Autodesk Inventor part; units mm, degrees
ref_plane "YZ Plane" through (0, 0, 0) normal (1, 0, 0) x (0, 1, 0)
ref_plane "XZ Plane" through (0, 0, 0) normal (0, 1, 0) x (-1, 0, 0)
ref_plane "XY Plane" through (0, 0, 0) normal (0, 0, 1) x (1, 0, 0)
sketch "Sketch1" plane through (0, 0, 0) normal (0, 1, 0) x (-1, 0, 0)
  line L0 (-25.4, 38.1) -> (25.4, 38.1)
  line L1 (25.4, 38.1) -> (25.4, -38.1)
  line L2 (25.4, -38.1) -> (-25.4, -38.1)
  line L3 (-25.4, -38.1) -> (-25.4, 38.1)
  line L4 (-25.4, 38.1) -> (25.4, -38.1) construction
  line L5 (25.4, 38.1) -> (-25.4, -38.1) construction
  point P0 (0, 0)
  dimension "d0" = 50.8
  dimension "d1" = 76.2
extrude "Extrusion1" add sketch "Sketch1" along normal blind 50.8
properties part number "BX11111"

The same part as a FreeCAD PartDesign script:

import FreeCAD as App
import Part
import Sketcher

V = App.Vector
Q = App.Units.Quantity

doc = App.newDocument("Part")
body = doc.addObject("PartDesign::Body", "Body")

sketch1 = body.newObject("Sketcher::SketchObject", "Sketch")
sketch1.AttachmentSupport = (doc.getObject("XZ_Plane"), [""])
sketch1.MapMode = "FlatFace"
sketch1.addGeometry(Part.LineSegment(V(-25.4, 38.1, 0), V(25.4, 38.1, 0)), False)
sketch1.addGeometry(Part.LineSegment(V(25.4, 38.1, 0), V(25.4, -38.1, 0)), False)
sketch1.addGeometry(Part.LineSegment(V(25.4, -38.1, 0), V(-25.4, -38.1, 0)), False)
sketch1.addGeometry(Part.LineSegment(V(-25.4, -38.1, 0), V(-25.4, 38.1, 0)), False)
sketch1.addConstraint(Sketcher.Constraint("Coincident", 0, 2, 1, 1))
sketch1.addConstraint(Sketcher.Constraint("Coincident", 1, 2, 2, 1))
sketch1.addConstraint(Sketcher.Constraint("Coincident", 2, 2, 3, 1))
sketch1.addConstraint(Sketcher.Constraint("Coincident", 3, 2, 0, 1))
sketch1.addConstraint(Sketcher.Constraint("Horizontal", 0))
sketch1.addConstraint(Sketcher.Constraint("Vertical", 1))
sketch1.addConstraint(Sketcher.Constraint("Horizontal", 2))
sketch1.addConstraint(Sketcher.Constraint("Vertical", 3))
sketch1.addConstraint(Sketcher.Constraint("Symmetric", 0, 2, 2, 2, -1, 1))
sketch1.addConstraint(Sketcher.Constraint("DistanceX", 0, 1, 0, 2, Q("2 in")))
sketch1.addConstraint(Sketcher.Constraint("DistanceY", 1, 2, 1, 1, Q("3 in")))
pad1 = body.newObject("PartDesign::Pad", "Pad")
pad1.Profile = sketch1
pad1.Length = Q("2 in")
pad1.Reversed = True

doc.recompute()
